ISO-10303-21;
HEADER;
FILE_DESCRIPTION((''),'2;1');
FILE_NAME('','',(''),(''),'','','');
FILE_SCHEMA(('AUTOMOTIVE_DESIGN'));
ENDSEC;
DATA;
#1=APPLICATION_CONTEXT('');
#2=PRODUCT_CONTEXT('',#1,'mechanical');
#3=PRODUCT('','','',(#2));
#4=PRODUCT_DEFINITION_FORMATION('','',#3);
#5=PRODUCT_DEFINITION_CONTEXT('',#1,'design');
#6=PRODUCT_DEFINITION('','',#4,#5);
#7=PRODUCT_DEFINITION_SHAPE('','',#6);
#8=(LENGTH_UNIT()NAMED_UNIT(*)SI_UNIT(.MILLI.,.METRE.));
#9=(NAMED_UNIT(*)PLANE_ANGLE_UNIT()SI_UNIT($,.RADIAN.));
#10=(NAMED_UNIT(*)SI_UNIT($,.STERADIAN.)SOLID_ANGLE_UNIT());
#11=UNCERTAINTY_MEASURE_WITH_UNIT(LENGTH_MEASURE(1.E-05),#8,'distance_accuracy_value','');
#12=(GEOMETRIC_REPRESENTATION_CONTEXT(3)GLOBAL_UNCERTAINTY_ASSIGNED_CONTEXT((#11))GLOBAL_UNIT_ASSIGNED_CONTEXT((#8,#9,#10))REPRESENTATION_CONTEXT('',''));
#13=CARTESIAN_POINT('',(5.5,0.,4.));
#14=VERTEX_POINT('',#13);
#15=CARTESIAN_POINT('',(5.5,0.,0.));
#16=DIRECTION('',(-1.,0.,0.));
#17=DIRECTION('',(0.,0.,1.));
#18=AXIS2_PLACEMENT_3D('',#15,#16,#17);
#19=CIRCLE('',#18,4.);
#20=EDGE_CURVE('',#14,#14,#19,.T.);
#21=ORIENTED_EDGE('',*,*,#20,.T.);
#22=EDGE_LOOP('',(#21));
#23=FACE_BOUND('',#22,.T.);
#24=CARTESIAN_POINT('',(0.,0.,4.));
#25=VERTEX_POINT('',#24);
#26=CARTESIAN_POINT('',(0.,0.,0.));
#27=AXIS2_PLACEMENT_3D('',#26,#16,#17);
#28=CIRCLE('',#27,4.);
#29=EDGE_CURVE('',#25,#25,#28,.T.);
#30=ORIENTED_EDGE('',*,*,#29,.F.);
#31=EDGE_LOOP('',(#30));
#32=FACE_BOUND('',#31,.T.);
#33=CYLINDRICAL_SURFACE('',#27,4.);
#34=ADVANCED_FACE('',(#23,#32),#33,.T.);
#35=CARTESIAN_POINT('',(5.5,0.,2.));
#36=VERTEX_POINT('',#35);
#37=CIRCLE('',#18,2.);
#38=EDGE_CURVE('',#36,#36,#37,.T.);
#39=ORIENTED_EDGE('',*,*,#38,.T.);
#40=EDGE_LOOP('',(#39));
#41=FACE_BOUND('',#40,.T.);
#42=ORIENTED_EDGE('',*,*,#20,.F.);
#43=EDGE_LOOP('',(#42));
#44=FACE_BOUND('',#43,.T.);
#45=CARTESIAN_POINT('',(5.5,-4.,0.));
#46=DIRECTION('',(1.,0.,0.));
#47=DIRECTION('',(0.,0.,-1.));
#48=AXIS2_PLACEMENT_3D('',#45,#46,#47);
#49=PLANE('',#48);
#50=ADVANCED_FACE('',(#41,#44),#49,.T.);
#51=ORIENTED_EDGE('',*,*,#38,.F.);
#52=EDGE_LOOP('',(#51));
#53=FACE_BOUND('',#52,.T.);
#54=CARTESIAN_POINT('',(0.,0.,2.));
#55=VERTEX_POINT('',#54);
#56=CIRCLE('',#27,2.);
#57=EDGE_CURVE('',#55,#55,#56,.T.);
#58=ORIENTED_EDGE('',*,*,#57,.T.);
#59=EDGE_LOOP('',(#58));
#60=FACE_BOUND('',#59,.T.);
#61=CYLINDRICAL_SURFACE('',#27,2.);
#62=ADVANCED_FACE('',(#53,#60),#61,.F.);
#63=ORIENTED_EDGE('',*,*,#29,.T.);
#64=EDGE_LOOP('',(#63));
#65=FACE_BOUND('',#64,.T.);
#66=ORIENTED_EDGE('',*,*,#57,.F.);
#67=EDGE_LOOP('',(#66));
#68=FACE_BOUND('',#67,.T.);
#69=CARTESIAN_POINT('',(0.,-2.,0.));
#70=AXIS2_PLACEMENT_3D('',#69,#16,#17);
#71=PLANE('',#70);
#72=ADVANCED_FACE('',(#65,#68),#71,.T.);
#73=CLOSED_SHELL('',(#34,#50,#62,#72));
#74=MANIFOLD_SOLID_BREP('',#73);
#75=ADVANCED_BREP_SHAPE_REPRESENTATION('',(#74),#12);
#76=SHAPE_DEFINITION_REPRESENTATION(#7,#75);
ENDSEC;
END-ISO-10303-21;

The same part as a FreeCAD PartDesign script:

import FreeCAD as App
import Part
import Sketcher

V = App.Vector


def add_polygon(sketch, points):
    """Adds a closed chain of lines whose ends are joined by coincident constraints."""
    first, n = sketch.GeometryCount, len(points)
    for a, b in zip(points, points[1:] + points[:1]):
        sketch.addGeometry(Part.LineSegment(App.Vector(*a, 0), App.Vector(*b, 0)), False)
    for i in range(n):
        sketch.addConstraint(Sketcher.Constraint("Coincident", first + i, 2, first + (i + 1) % n, 1))

doc = App.newDocument("Part")
body = doc.addObject("PartDesign::Body", "Body")

# Sketch on XY plane
sketch1 = body.newObject("Sketcher::SketchObject", "Sketch")
sketch1.AttachmentSupport = (doc.getObject("XY_Plane"), [""])
sketch1.MapMode = "FlatFace"
add_polygon(sketch1, [(0, -2), (0, -4), (5.5, -4), (5.5, -2)])  # lines 0-3
sketch1.addConstraint([
    Sketcher.Constraint("Vertical", 0),
    Sketcher.Constraint("Horizontal", 1),
    Sketcher.Constraint("Vertical", 2),
    Sketcher.Constraint("Horizontal", 3),
    Sketcher.Constraint("PointOnObject", 0, 2, -2),
    Sketcher.Constraint("DistanceY", 0, 2, 0, 1, 2.0),
    Sketcher.Constraint("DistanceX", 1, 1, 1, 2, 5.5),
    Sketcher.Constraint("DistanceY", 0, 2, -1, 1, 4.0),
])
revolution = body.newObject("PartDesign::Revolution", "Revolution")
revolution.Profile = sketch1
revolution.ReferenceAxis = (sketch1, ["H_Axis"])
revolution.Angle = 360

doc.recompute()
